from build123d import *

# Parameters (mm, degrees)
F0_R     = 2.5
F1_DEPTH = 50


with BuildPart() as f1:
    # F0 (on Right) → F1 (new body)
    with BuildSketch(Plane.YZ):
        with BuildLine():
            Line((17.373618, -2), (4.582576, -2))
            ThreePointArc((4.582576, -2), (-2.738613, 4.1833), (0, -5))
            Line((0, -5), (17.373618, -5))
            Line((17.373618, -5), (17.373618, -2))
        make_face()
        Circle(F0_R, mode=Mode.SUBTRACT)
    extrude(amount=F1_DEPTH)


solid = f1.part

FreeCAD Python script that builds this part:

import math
import FreeCAD as App
import Part
import Sketcher

V = App.Vector

doc = App.newDocument("Part")
body = doc.addObject("PartDesign::Body", "Body")

# Sketch on YZ plane
sketch1 = doc.addObject("Sketcher::SketchObject", "Sketch")
body.addObject(sketch1)
sketch1.AttachmentSupport = (doc.YZ_Plane, [""])
sketch1.MapMode = "FlatFace"
sketch1.addGeometry([
    Part.LineSegment(V(17.373618, -2, 0), V(4.582576, -2, 0)),  # 0
    Part.ArcOfCircle(Part.Circle(V(0, 0, 0), V(0, 0, 1), 5), math.radians(-23.578179), math.radians(269.999997)),  # 1
    Part.LineSegment(V(0, -5, 0), V(17.373618, -5, 0)),  # 2
    Part.LineSegment(V(17.373618, -5, 0), V(17.373618, -2, 0)),  # 3
    Part.Circle(V(0, 0, 0), V(0, 0, 1), 2.5),  # 4
], False)
sketch1.addConstraint([
    Sketcher.Constraint("Coincident", 0, 2, 1, 1),
    Sketcher.Constraint("Tangent", 1, 2, 2, 1),
    Sketcher.Constraint("Coincident", 2, 2, 3, 1),
    Sketcher.Constraint("Coincident", 3, 2, 0, 1),
    Sketcher.Constraint("Horizontal", 0),
    Sketcher.Constraint("Horizontal", 2),
    Sketcher.Constraint("Vertical", 3),
    Sketcher.Constraint("Coincident", 1, 3, -1, 1),
    Sketcher.Constraint("Coincident", 4, 3, -1, 1),
    Sketcher.Constraint("Diameter", 4, 5.0),
    Sketcher.Constraint("Radius", 1, 5.0),
    Sketcher.Constraint("DistanceY", 3, 1, 3, 2, 3.0),
    Sketcher.Constraint("DistanceX", 2, 1, 2, 2, 17.373618),
])
pad1 = doc.addObject("PartDesign::Pad", "Pad")
body.addObject(pad1)
pad1.Profile = sketch1
pad1.Length = 50

doc.recompute()
